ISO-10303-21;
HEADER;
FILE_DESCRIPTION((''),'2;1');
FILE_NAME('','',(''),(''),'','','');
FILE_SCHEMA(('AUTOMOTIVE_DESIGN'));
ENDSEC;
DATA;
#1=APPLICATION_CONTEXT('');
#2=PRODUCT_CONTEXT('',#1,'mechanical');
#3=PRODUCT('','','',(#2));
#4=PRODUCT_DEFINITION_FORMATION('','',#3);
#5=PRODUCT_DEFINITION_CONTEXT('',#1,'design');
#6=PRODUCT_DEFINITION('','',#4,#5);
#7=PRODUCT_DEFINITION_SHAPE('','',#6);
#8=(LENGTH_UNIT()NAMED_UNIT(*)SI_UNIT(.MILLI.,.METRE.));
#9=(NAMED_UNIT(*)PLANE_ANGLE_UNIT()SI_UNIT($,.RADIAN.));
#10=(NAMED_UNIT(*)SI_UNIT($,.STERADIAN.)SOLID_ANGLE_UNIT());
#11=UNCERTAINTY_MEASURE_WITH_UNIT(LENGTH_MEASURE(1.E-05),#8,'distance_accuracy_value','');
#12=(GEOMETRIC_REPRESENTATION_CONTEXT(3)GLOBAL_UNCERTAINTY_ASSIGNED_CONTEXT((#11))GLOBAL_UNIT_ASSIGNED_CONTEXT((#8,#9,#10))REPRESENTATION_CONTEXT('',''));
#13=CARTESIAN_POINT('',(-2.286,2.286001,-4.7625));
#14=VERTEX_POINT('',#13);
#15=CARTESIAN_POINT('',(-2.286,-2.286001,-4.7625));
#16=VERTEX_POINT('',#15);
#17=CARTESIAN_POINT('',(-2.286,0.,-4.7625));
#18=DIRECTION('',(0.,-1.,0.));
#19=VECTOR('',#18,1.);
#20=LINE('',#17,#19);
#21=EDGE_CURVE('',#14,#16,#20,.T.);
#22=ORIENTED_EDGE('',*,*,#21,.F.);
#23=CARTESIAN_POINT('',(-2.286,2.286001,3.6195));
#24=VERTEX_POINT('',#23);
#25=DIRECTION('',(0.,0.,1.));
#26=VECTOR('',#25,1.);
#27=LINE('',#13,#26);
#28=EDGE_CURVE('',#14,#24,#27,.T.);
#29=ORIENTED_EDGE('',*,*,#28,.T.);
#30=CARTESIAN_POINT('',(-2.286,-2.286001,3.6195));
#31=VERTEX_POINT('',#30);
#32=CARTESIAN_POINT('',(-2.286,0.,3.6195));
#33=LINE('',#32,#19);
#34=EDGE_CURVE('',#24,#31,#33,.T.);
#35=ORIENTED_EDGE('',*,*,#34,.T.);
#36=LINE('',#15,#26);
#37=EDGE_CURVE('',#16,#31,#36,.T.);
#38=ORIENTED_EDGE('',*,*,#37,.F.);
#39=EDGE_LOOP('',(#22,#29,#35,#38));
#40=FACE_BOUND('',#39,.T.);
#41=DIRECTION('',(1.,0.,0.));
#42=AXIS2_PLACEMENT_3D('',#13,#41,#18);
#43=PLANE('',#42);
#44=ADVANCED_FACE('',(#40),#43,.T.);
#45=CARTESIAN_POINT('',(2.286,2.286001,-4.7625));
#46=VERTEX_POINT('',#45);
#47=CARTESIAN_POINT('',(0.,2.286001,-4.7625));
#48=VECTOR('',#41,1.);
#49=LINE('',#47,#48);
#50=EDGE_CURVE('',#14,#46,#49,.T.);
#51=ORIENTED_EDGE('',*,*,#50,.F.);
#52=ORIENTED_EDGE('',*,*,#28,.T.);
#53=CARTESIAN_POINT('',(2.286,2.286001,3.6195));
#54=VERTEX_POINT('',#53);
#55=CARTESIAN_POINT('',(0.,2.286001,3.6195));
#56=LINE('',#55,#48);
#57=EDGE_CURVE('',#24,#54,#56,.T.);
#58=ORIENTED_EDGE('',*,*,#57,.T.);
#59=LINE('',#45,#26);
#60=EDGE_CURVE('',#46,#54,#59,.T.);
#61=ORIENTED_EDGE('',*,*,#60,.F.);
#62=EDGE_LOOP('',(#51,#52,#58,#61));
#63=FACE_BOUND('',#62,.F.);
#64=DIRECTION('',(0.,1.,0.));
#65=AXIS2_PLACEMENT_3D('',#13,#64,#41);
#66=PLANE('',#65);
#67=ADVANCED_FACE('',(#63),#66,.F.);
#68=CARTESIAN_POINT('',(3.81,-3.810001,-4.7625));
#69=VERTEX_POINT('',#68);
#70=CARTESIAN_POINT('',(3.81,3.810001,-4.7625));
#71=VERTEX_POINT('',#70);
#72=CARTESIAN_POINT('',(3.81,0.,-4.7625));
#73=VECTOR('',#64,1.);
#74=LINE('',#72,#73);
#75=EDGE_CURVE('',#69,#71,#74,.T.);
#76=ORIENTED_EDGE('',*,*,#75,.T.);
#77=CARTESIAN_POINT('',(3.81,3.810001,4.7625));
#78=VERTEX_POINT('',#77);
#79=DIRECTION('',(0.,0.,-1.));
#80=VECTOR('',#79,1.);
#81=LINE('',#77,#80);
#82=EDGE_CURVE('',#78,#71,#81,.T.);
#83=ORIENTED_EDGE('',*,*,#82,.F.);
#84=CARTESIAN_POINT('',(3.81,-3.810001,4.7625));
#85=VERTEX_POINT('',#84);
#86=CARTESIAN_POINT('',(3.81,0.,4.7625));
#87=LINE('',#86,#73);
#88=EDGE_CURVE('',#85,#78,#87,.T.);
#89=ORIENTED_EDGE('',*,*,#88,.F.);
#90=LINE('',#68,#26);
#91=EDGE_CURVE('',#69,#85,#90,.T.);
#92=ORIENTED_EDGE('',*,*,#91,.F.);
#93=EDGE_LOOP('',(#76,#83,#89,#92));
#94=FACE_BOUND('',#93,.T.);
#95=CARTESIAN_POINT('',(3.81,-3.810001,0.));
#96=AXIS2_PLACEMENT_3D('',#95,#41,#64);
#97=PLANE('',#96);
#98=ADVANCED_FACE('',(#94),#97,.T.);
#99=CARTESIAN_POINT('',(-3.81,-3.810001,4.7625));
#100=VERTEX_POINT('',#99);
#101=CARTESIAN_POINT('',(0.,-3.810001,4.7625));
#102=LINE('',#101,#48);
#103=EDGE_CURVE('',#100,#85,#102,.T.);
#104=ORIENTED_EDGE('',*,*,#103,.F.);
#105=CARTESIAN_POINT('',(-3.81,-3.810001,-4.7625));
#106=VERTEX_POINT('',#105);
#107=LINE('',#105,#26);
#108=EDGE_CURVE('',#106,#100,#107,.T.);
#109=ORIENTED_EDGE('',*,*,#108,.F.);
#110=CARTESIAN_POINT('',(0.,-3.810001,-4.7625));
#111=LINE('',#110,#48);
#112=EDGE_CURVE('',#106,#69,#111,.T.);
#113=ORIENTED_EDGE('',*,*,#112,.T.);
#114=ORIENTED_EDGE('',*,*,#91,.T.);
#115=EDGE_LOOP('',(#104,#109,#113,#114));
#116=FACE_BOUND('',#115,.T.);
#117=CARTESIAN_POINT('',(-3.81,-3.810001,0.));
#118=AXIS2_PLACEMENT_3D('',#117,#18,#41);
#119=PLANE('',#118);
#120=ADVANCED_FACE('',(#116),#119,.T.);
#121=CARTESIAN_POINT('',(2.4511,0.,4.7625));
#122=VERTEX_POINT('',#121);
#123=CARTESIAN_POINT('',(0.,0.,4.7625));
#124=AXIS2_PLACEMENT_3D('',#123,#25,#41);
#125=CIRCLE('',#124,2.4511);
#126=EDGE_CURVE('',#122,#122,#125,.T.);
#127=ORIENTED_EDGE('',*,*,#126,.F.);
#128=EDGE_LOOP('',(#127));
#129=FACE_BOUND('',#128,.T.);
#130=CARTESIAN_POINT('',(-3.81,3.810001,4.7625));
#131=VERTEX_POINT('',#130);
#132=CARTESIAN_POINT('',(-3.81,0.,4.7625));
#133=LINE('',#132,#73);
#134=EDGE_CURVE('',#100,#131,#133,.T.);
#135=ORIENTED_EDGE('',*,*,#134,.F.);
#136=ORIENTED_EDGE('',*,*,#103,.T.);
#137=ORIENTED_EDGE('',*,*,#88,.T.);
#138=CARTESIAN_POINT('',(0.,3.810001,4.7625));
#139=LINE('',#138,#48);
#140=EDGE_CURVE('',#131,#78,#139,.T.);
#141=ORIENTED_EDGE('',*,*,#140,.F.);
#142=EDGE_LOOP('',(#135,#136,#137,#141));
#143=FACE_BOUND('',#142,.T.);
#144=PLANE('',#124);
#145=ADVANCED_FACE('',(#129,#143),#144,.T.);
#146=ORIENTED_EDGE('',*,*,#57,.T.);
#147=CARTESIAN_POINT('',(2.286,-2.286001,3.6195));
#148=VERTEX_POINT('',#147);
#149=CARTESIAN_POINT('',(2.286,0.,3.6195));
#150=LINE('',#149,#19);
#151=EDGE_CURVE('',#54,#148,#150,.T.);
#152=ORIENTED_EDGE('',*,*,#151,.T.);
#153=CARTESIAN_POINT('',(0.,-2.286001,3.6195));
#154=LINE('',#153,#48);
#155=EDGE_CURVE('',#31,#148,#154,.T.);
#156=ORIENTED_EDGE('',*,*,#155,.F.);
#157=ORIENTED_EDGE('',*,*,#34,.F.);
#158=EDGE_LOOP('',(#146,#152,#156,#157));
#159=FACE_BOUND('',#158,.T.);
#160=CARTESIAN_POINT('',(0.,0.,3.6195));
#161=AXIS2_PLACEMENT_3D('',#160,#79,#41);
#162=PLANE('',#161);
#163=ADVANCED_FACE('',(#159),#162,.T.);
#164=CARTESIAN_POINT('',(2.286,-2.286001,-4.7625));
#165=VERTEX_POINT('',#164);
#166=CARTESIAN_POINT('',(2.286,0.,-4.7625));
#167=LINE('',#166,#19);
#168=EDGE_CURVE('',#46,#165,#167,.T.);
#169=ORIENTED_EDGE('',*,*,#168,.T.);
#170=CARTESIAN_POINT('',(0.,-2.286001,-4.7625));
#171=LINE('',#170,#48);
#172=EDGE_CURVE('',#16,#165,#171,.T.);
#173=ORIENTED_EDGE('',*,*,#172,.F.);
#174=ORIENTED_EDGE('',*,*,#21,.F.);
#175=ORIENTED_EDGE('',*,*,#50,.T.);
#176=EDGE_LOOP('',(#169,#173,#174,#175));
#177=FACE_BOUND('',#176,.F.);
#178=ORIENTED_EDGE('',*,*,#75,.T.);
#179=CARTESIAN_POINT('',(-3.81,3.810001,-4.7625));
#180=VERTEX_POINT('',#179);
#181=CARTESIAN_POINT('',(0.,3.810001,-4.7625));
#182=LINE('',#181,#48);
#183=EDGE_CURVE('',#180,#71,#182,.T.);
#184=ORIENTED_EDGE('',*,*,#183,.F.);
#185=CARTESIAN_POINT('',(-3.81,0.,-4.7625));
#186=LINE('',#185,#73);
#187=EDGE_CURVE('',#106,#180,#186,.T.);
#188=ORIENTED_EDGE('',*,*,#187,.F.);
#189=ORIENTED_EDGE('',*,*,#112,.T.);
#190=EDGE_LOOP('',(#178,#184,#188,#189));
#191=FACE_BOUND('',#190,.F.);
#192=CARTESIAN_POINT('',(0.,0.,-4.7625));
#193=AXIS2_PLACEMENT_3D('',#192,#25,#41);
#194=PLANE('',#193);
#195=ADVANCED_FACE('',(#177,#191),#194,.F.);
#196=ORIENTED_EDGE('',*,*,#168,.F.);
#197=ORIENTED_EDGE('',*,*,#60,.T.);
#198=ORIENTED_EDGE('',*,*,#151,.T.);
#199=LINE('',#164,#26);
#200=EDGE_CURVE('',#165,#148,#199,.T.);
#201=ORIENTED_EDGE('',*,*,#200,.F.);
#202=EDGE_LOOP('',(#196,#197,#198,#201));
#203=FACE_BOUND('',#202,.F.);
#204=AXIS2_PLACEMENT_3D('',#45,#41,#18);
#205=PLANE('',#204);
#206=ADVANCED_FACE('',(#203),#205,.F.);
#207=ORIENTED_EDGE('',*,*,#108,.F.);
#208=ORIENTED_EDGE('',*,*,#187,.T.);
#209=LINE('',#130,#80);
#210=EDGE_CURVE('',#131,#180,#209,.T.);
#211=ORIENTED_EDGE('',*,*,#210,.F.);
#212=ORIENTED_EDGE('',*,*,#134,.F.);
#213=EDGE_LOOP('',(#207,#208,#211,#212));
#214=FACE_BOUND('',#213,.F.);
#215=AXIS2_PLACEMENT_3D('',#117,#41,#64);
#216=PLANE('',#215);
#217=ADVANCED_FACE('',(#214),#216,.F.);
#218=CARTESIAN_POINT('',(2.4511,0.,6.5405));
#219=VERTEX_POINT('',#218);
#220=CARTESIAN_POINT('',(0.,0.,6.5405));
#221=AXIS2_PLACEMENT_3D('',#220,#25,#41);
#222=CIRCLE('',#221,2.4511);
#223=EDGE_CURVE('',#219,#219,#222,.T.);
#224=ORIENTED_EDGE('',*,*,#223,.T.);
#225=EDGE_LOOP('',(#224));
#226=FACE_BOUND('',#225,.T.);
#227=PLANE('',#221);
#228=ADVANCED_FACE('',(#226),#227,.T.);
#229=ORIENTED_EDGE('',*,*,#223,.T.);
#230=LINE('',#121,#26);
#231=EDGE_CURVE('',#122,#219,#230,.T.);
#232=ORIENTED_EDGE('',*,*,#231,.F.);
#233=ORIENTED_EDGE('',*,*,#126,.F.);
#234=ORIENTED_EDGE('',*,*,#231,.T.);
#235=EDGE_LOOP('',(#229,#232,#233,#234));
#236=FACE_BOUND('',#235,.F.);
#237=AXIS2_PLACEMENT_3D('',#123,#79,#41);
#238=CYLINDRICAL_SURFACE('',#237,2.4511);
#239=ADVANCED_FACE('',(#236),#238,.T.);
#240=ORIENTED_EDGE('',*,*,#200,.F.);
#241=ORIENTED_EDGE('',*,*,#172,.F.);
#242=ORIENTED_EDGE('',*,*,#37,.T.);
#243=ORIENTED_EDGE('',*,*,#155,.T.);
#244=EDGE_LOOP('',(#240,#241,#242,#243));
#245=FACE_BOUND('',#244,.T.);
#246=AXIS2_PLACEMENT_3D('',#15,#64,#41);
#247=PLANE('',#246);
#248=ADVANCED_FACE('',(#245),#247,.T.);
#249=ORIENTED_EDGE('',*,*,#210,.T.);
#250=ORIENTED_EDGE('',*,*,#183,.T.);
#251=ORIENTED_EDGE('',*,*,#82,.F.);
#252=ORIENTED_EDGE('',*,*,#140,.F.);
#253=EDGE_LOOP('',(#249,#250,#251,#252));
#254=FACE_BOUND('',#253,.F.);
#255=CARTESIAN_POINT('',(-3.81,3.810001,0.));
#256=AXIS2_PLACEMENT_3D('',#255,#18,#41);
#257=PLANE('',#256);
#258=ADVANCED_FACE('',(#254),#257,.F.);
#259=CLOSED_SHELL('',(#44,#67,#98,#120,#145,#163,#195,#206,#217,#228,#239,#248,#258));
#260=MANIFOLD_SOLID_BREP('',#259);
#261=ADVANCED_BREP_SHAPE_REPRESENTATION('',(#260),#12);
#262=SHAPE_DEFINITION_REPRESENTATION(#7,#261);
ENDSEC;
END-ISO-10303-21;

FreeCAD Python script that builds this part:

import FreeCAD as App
import Part
import Sketcher
from FreeCAD import Vector
Q = App.Units.Quantity

doc = App.newDocument("Part")
body = doc.addObject("PartDesign::Body", "Body")

sketch1 = doc.addObject("Sketcher::SketchObject", "Sketch")
body.addObject(sketch1)
sketch1.AttachmentSupport = (doc.XY_Plane, [""])
sketch1.MapMode = "FlatFace"
sketch1.addGeometry([
    Part.LineSegment(Vector(-4, 4, 0), Vector(-4, -4, 0)),
    Part.LineSegment(Vector(-4, -4, 0), Vector(4, -4, 0)),
    Part.LineSegment(Vector(4, -4, 0), Vector(4, 4, 0)),
    Part.LineSegment(Vector(4, 4, 0), Vector(-4, 4, 0)),
], False)
sketch1.addConstraint([
    Sketcher.Constraint("Coincident", 0, 2, 1, 1),
    Sketcher.Constraint("Coincident", 1, 2, 2, 1),
    Sketcher.Constraint("Coincident", 2, 2, 3, 1),
    Sketcher.Constraint("Coincident", 3, 2, 0, 1),
    Sketcher.Constraint("Vertical", 0),
    Sketcher.Constraint("Horizontal", 1),
    Sketcher.Constraint("Vertical", 2),
    Sketcher.Constraint("Horizontal", 3),
    Sketcher.Constraint("Symmetric", 0, 2, 2, 2, -1, 1),
    Sketcher.Constraint("DistanceX", 1, 1, 1, 2, Q("0.3 in")),
    Sketcher.Constraint("DistanceY", 0, 2, 0, 1, Q("0.3000001 in")),
])
pad1 = doc.addObject("PartDesign::Pad", "Pad")
body.addObject(pad1)
pad1.Profile = sketch1
pad1.Length = Q("0.375 in")
pad1.Midplane = True

sketch2 = doc.addObject("Sketcher::SketchObject", "Sketch001")
body.addObject(sketch2)
sketch2.AttachmentSupport = (doc.XY_Plane, [""])
sketch2.MapMode = "FlatFace"
sketch2.AttachmentOffset = App.Placement(Vector(0, 0, 0.1875 * 25.4), App.Rotation())
sketch2.addGeometry(Part.Circle(Vector(0, 0, 0), Vector(0, 0, 1), 2.5), False)
sketch2.addConstraint([
    Sketcher.Constraint("Coincident", 0, 3, -1, 1),
    Sketcher.Constraint("Diameter", 0, Q("0.193 in")),
])
pad2 = doc.addObject("PartDesign::Pad", "Pad001")
body.addObject(pad2)
pad2.Profile = sketch2
pad2.Length = Q("0.07 in")

sketch3 = doc.addObject("Sketcher::SketchObject", "Sketch002")
body.addObject(sketch3)
sketch3.AttachmentSupport = (doc.XY_Plane, [""])
sketch3.MapMode = "FlatFace"
sketch3.AttachmentOffset = App.Placement(Vector(0, 0, -0.1875 * 25.4), App.Rotation())
sketch3.addGeometry([
    Part.LineSegment(Vector(-2.3, -2.3, 0), Vector(-2.3, 2.3, 0)),
    Part.LineSegment(Vector(-2.3, 2.3, 0), Vector(2.3, 2.3, 0)),
    Part.LineSegment(Vector(2.3, 2.3, 0), Vector(2.3, -2.3, 0)),
    Part.LineSegment(Vector(2.3, -2.3, 0), Vector(-2.3, -2.3, 0)),
], False)
sketch3.addConstraint([
    Sketcher.Constraint("Coincident", 0, 2, 1, 1),
    Sketcher.Constraint("Coincident", 1, 2, 2, 1),
    Sketcher.Constraint("Coincident", 2, 2, 3, 1),
    Sketcher.Constraint("Coincident", 3, 2, 0, 1),
    Sketcher.Constraint("Vertical", 0),
    Sketcher.Constraint("Horizontal", 1),
    Sketcher.Constraint("Vertical", 2),
    Sketcher.Constraint("Horizontal", 3),
    Sketcher.Constraint("Symmetric", 0, 2, 2, 2, -1, 1),
    Sketcher.Constraint("DistanceX", 1, 1, 1, 2, Q("0.18 in")),
    Sketcher.Constraint("DistanceY", 0, 1, 0, 2, Q("0.1800001 in")),
])
pocket1 = doc.addObject("PartDesign::Pocket", "Pocket")
body.addObject(pocket1)
pocket1.Profile = sketch3
pocket1.Length = Q("0.33 in")
pocket1.Reversed = True

doc.recompute()
